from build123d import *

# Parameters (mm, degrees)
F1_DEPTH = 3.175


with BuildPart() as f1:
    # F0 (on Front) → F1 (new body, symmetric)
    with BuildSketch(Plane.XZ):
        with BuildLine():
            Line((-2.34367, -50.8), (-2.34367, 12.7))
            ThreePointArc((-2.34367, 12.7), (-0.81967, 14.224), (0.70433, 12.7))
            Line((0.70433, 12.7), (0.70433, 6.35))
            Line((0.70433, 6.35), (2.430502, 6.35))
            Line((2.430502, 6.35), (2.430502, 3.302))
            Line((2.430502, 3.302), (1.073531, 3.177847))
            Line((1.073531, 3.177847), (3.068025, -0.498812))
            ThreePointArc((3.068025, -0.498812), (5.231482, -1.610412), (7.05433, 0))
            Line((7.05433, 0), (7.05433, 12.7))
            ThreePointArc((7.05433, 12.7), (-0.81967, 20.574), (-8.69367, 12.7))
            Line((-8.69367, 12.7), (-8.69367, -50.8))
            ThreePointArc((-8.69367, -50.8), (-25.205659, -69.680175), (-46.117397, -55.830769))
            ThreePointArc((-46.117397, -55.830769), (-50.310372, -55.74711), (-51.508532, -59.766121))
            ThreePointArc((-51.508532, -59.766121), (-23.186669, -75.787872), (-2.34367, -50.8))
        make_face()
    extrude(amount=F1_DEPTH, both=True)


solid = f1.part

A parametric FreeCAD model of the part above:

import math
import FreeCAD as App
import Part
import Sketcher

V = App.Vector
Q = App.Units.Quantity

doc = App.newDocument("Part")
body = doc.addObject("PartDesign::Body", "Body")

sketch1 = body.newObject("Sketcher::SketchObject", "Sketch")
sketch1.AttachmentSupport = (doc.getObject("XZ_Plane"), [""])
sketch1.MapMode = "FlatFace"
sketch1.addGeometry(Part.LineSegment(V(-2.3, -50.8, 0), V(-2.3, 12.7, 0)), False)
sketch1.addGeometry(Part.ArcOfCircle(Part.Circle(V(-0.8, 12.7, 0), V(0, 0, 1), 1.5), math.radians(0), math.radians(180)), False)
sketch1.addGeometry(Part.LineSegment(V(0.7, 12.7, 0), V(0.7, 6.3, 0)), False)
sketch1.addGeometry(Part.LineSegment(V(0.7, 6.3, 0), V(2.4, 6.3, 0)), False)
sketch1.addGeometry(Part.LineSegment(V(2.4, 6.3, 0), V(2.4, 3.3, 0)), False)
sketch1.addGeometry(Part.LineSegment(V(2.4, 3.3, 0), V(1.1, 3.2, 0)), False)
sketch1.addGeometry(Part.LineSegment(V(1.1, 3.2, 0), V(3.1, -0.5, 0)), False)
sketch1.addGeometry(Part.ArcOfCircle(Part.Circle(V(5, 0.5, 0), V(0, 0, 1), 2.2), math.radians(-152), math.radians(-14)), False)
sketch1.addGeometry(Part.LineSegment(V(7.1, 0, 0), V(7.1, 12.7, 0)), False)
sketch1.addGeometry(Part.ArcOfCircle(Part.Circle(V(-0.8, 12.7, 0), V(0, 0, 1), 7.9), math.radians(0), math.radians(180)), False)
sketch1.addGeometry(Part.LineSegment(V(-8.7, 12.7, 0), V(-8.7, -50.8, 0)), False)
sketch1.addGeometry(Part.ArcOfCircle(Part.Circle(V(-27.7, -50.8, 0), V(0, 0, 1), 19), math.radians(-165), math.radians(0)), False)
sketch1.addGeometry(Part.ArcOfCircle(Part.Circle(V(-48.3, -58.5, 0), V(0, 0, 1), 3.5), math.radians(52), math.radians(201)), False)
sketch1.addGeometry(Part.ArcOfCircle(Part.Circle(V(-27.7, -50.8, 0), V(0, 0, 1), 25.4), math.radians(-159), math.radians(0)), False)
sketch1.addConstraint(Sketcher.Constraint("Tangent", 0, 2, 1, 2))
sketch1.addConstraint(Sketcher.Constraint("Tangent", 1, 1, 2, 1))
sketch1.addConstraint(Sketcher.Constraint("Coincident", 2, 2, 3, 1))
sketch1.addConstraint(Sketcher.Constraint("Coincident", 3, 2, 4, 1))
sketch1.addConstraint(Sketcher.Constraint("Coincident", 4, 2, 5, 1))
sketch1.addConstraint(Sketcher.Constraint("Coincident", 5, 2, 6, 1))
sketch1.addConstraint(Sketcher.Constraint("Tangent", 6, 2, 7, 1))
sketch1.addConstraint(Sketcher.Constraint("Coincident", 7, 2, 8, 1))
sketch1.addConstraint(Sketcher.Constraint("Tangent", 8, 2, 9, 1))
sketch1.addConstraint(Sketcher.Constraint("Tangent", 9, 2, 10, 1))
sketch1.addConstraint(Sketcher.Constraint("Tangent", 10, 2, 11, 2))
sketch1.addConstraint(Sketcher.Constraint("Coincident", 11, 1, 12, 1))
sketch1.addConstraint(Sketcher.Constraint("Tangent", 12, 2, 13, 1))
sketch1.addConstraint(Sketcher.Constraint("Tangent", 13, 2, 0, 1))
sketch1.addConstraint(Sketcher.Constraint("Vertical", 0))
sketch1.addConstraint(Sketcher.Constraint("Vertical", 2))
sketch1.addConstraint(Sketcher.Constraint("Horizontal", 3))
sketch1.addConstraint(Sketcher.Constraint("Vertical", 4))
sketch1.addConstraint(Sketcher.Constraint("Vertical", 8))
sketch1.addConstraint(Sketcher.Constraint("Vertical", 10))
sketch1.addConstraint(Sketcher.Constraint("Coincident", 9, 3, 1, 3))
sketch1.addConstraint(Sketcher.Constraint("Coincident", 13, 3, 11, 3))
sketch1.addConstraint(Sketcher.Constraint("PointOnObject", 7, 2, -1))
sketch1.addConstraint(Sketcher.Constraint("Radius", 13, Q("1 in")))
sketch1.addConstraint(Sketcher.Constraint("Radius", 1, Q("0.06 in")))
sketch1.addConstraint(Sketcher.Constraint("Radius", 9, Q("0.31 in")))
sketch1.addConstraint(Sketcher.Constraint("DistanceY", 0, 1, 0, 2, Q("2.5 in")))
sketch1.addConstraint(Sketcher.Constraint("DistanceY", 8, 1, 8, 2, Q("0.5 in")))
sketch1.addConstraint(Sketcher.Constraint("DistanceY", 2, 2, 2, 1, Q("0.25 in")))
sketch1.addConstraint(Sketcher.Constraint("DistanceY", 4, 2, 4, 1, Q("0.12 in")))
sketch1.addConstraint(Sketcher.Constraint("Radius", 7, Q("2.156648 mm")))
sketch1.addConstraint(Sketcher.Constraint("Radius", 12, Q("3.462587 mm")))
sketch1.addConstraint(Sketcher.Constraint("Distance", 6, Q("4.182801 mm")))
sketch1.addConstraint(Sketcher.Constraint("DistanceX", 2, 2, 5, 2, Q("0.369201 mm")))
sketch1.addConstraint(Sketcher.Constraint("DistanceY", 7, 3, 5, 2, Q("2.6483 mm")))
sketch1.addConstraint(Sketcher.Constraint("Distance", 5, Q("1.362639 mm")))
sketch1.addConstraint(Sketcher.Constraint("DistanceX", 1, 3, -1, 1, Q("0.81967 mm")))
sketch1.addConstraint(Sketcher.Constraint("DistanceX", 12, 3, -1, 1, Q("48.268851 mm")))
pad1 = body.newObject("PartDesign::Pad", "Pad")
pad1.Profile = sketch1
pad1.Length = Q("0.25 in")
pad1.Midplane = True

doc.recompute()
